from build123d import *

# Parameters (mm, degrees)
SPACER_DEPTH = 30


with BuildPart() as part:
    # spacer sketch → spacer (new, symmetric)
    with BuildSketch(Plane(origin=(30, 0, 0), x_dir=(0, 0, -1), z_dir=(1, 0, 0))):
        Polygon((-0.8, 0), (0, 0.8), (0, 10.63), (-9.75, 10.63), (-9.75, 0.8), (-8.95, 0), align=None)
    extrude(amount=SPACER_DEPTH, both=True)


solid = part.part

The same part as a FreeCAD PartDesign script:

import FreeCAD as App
import Part
import Sketcher

V = App.Vector
Q = App.Units.Quantity


def add_polygon(sketch, points):
    """Adds a closed chain of lines whose ends are joined by coincident constraints."""
    first, n = sketch.GeometryCount, len(points)
    for a, b in zip(points, points[1:] + points[:1]):
        sketch.addGeometry(Part.LineSegment(App.Vector(*a, 0), App.Vector(*b, 0)), False)
    for i in range(n):
        sketch.addConstraint(Sketcher.Constraint("Coincident", first + i, 2, first + (i + 1) % n, 1))

doc = App.newDocument("Part")
params = doc.addObject("Spreadsheet::Sheet", "Params")
for row, (alias, value) in enumerate([
    ("sketch1_width", "9.83 mm"),
    ("sketch1_height", "9.75 mm"),
    ("sketch1_height2", "8.15 mm"),
    ("pad1_length", "60 mm"),
], start=1):
    params.set(f"A{row}", alias)
    params.set(f"B{row}", "=" + value)
    params.setAlias(f"B{row}", alias)

body = doc.addObject("PartDesign::Body", "Body")

sketch1 = body.newObject("Sketcher::SketchObject", "Sketch")
sketch1.AttachmentSupport = (doc.getObject("YZ_Plane"), [""])
sketch1.MapMode = "FlatFace"
sketch1.AttachmentOffset = App.Placement(V(0, 0, 30), App.Rotation())
add_polygon(sketch1, [(0, 0.8), (0.8, 0), (10.63, 0), (10.63, 9.75), (0.8, 9.75), (0, 8.95)])
sketch1.addConstraint(Sketcher.Constraint("Horizontal", 1))
sketch1.addConstraint(Sketcher.Constraint("Vertical", 2))
sketch1.addConstraint(Sketcher.Constraint("Horizontal", 3))
sketch1.addConstraint(Sketcher.Constraint("Vertical", 5))
sketch1.addConstraint(Sketcher.Constraint("PointOnObject", 0, 2, -1))
sketch1.addConstraint(Sketcher.Constraint("PointOnObject", 4, 2, -2))
sketch1.addConstraint(Sketcher.Constraint("Perpendicular", 0, 4))
sketch1.addConstraint(Sketcher.Constraint("Vertical", 0, 2, 3, 2))
sketch1.addConstraint(Sketcher.Constraint("Equal", 0, 4))
sketch1.addConstraint(Sketcher.Constraint("DistanceX", 1, 1, 1, 2, Q("9.83 mm")))
sketch1.addConstraint(Sketcher.Constraint("DistanceY", 2, 1, 2, 2, Q("9.75 mm")))
sketch1.addConstraint(Sketcher.Constraint("DistanceY", 5, 2, 5, 1, Q("8.15 mm")))
sketch1.setExpression("Constraints[15]", "Params.sketch1_width")
sketch1.setExpression("Constraints[16]", "Params.sketch1_height")
sketch1.setExpression("Constraints[17]", "Params.sketch1_height2")
pad1 = body.newObject("PartDesign::Pad", "Pad")
pad1.Profile = sketch1
pad1.setExpression("Length", "Params.pad1_length")
pad1.Midplane = True

doc.recompute()
